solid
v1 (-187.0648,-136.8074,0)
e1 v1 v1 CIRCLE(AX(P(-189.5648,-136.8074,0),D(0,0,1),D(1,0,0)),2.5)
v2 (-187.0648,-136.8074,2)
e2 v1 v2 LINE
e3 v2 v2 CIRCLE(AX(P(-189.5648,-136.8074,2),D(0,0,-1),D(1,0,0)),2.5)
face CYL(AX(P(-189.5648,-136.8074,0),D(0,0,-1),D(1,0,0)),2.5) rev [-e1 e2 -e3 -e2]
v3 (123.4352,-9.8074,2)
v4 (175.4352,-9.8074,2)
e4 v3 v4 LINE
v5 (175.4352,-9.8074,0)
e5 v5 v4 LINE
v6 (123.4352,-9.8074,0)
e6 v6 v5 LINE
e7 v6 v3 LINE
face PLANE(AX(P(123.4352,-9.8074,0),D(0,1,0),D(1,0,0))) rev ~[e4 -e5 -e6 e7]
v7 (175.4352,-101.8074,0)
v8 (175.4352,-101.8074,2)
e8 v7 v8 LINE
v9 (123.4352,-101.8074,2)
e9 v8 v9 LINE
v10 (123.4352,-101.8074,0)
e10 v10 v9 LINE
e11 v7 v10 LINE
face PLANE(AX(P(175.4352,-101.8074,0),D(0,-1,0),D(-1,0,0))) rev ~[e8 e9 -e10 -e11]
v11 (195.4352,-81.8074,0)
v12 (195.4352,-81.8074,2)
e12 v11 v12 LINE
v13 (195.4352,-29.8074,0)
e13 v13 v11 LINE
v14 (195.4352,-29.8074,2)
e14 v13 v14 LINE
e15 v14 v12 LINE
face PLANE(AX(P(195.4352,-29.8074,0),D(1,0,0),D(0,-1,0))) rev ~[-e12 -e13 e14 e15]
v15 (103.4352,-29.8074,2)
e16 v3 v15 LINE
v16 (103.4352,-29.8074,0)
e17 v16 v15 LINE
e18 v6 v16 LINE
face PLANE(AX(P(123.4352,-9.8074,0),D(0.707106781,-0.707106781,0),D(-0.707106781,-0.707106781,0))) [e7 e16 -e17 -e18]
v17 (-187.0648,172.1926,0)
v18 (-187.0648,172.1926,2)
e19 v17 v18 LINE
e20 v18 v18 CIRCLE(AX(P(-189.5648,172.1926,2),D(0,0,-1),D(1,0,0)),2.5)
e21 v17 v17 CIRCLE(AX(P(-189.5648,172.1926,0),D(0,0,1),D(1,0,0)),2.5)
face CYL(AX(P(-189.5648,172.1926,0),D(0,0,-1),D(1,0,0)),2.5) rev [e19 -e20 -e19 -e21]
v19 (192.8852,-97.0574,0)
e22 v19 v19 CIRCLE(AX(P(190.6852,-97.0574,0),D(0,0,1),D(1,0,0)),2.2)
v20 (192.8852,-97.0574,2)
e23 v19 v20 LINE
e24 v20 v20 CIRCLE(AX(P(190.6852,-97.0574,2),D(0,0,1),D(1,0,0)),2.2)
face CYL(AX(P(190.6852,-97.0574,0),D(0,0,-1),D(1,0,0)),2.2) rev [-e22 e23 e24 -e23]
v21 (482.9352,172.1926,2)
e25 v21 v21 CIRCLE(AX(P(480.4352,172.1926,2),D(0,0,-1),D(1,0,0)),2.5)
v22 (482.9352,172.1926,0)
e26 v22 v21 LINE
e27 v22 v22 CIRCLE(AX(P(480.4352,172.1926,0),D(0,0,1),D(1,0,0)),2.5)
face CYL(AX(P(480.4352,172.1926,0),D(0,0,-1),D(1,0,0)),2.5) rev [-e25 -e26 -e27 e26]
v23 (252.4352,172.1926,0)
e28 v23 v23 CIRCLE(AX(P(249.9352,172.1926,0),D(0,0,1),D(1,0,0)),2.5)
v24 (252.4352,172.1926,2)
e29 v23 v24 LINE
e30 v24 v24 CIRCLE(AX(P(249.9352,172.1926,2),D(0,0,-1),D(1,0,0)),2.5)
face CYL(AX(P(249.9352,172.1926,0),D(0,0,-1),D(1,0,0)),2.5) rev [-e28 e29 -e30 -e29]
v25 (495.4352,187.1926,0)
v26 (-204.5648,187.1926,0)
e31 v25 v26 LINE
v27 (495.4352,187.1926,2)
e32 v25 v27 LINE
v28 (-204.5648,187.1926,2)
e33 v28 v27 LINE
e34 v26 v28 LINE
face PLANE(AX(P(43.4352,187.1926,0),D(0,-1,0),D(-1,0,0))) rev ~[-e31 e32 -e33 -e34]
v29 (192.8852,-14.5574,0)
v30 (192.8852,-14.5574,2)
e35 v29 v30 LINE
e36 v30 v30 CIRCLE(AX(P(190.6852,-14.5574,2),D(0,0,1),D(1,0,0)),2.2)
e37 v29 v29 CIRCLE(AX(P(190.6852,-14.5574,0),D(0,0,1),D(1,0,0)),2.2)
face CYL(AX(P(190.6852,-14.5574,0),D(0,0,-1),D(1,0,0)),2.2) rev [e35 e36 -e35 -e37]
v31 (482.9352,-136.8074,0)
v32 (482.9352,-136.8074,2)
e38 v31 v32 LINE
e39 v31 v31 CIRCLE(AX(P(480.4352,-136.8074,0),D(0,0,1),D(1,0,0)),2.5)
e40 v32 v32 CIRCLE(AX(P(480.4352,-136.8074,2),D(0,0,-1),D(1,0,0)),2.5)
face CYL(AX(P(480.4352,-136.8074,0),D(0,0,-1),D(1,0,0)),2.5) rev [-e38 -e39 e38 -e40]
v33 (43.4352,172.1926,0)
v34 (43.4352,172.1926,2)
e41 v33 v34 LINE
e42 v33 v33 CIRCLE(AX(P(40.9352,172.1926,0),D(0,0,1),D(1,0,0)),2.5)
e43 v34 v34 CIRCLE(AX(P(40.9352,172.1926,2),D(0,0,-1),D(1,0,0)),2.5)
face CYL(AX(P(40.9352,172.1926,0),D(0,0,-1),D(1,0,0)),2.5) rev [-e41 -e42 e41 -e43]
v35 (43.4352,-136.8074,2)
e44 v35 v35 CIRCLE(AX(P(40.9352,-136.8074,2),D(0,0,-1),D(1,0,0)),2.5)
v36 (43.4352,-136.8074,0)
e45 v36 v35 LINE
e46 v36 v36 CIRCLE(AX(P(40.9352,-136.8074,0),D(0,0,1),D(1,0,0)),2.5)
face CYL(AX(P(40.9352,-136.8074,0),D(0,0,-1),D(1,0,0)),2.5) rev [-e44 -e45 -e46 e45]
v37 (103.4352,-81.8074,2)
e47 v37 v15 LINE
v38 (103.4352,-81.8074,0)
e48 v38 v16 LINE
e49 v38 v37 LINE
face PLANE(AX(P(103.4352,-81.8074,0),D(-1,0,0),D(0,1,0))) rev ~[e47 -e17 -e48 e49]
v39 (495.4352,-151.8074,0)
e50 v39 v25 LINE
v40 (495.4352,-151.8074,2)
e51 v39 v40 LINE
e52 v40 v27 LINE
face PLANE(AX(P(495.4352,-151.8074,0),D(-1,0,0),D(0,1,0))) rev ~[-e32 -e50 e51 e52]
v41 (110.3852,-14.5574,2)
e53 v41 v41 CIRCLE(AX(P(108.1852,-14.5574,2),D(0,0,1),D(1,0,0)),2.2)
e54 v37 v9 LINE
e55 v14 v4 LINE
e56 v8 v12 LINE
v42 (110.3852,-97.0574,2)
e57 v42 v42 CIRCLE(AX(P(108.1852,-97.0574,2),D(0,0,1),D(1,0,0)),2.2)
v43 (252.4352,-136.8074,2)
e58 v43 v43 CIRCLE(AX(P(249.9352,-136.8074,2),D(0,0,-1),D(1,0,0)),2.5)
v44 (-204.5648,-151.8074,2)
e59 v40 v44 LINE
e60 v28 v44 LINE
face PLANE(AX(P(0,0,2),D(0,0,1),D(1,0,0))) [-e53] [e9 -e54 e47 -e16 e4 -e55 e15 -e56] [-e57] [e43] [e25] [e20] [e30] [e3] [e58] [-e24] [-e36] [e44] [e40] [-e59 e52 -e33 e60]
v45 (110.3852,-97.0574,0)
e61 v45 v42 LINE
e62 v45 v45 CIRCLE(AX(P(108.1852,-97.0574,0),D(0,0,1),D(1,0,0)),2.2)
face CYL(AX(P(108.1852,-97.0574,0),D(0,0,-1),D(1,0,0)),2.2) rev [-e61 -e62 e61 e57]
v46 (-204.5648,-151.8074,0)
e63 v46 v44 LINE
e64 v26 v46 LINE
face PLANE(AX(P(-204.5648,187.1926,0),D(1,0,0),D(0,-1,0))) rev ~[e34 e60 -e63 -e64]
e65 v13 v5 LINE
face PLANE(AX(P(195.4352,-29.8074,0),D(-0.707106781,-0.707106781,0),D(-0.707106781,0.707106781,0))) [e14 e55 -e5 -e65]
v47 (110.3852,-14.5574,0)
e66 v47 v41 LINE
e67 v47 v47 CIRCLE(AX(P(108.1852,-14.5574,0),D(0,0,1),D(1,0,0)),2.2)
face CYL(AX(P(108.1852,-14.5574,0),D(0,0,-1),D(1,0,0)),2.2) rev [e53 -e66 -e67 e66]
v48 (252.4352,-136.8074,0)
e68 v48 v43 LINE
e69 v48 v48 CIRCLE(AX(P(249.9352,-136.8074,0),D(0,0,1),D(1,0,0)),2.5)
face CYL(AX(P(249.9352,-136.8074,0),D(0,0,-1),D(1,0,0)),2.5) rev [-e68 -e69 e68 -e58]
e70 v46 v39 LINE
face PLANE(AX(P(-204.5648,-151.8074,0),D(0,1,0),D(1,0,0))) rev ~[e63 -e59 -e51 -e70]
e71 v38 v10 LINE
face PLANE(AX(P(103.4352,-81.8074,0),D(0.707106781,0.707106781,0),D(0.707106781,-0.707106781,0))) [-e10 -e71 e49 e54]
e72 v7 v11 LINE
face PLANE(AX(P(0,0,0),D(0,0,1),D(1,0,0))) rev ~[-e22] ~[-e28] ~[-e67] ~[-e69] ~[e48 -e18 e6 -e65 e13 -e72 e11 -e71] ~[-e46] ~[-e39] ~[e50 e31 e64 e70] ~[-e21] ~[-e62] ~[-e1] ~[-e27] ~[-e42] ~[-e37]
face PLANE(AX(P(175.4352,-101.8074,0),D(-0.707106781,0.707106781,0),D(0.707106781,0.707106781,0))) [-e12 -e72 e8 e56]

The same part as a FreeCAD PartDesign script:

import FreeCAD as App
import Part
import Sketcher


def add_polygon(sketch, points):
    """Adds a closed chain of lines whose ends are joined by coincident constraints."""
    first, n = sketch.GeometryCount, len(points)
    for a, b in zip(points, points[1:] + points[:1]):
        sketch.addGeometry(Part.LineSegment(App.Vector(*a, 0), App.Vector(*b, 0)), False)
    for i in range(n):
        sketch.addConstraint(Sketcher.Constraint("Coincident", first + i, 2, first + (i + 1) % n, 1))

doc = App.newDocument("Part")
body = doc.addObject("PartDesign::Body", "Body")

# Sketch on XY plane
sketch1 = doc.addObject("Sketcher::SketchObject", "Sketch")
body.addObject(sketch1)
sketch1.AttachmentSupport = (doc.XY_Plane, [""])
sketch1.MapMode = "FlatFace"
add_polygon(sketch1, [(-204.6, 187.2), (-204.6, -151.8), (495.4, -151.8), (495.4, 187.2)])  # lines 0-3
sketch1.addGeometry(Part.Circle(App.Vector(40.9, 172.2, 0), App.Vector(0, 0, 1), 2.5), False)  # 4
sketch1.addGeometry(Part.Circle(App.Vector(-189.6, -136.8, 0), App.Vector(0, 0, 1), 2.5), False)  # 5
sketch1.addGeometry(Part.Circle(App.Vector(-189.6, 172.2, 0), App.Vector(0, 0, 1), 2.5), False)  # 6
sketch1.addGeometry(Part.Circle(App.Vector(40.9, -136.8, 0), App.Vector(0, 0, 1), 2.5), False)  # 7
add_polygon(sketch1, [(195.4, -29.8), (195.4, -81.8), (175.4, -101.8), (123.4, -101.8), (103.4, -81.8), (103.4, -29.8), (123.4, -9.8), (175.4, -9.8)])  # lines 8-15
sketch1.addGeometry(Part.Circle(App.Vector(190.7, -14.6, 0), App.Vector(0, 0, 1), 2.2), False)  # 16
sketch1.addGeometry(Part.Circle(App.Vector(108.2, -97.1, 0), App.Vector(0, 0, 1), 2.2), False)  # 17
sketch1.addGeometry(Part.Circle(App.Vector(108.2, -14.6, 0), App.Vector(0, 0, 1), 2.2), False)  # 18
sketch1.addGeometry(Part.Circle(App.Vector(190.7, -97.1, 0), App.Vector(0, 0, 1), 2.2), False)  # 19
sketch1.addGeometry(Part.Circle(App.Vector(249.9, -136.8, 0), App.Vector(0, 0, 1), 2.5), False)  # 20
sketch1.addGeometry(Part.Circle(App.Vector(480.4, 172.2, 0), App.Vector(0, 0, 1), 2.5), False)  # 21
sketch1.addGeometry(Part.Circle(App.Vector(249.9, 172.2, 0), App.Vector(0, 0, 1), 2.5), False)  # 22
sketch1.addGeometry(Part.Circle(App.Vector(480.4, -136.8, 0), App.Vector(0, 0, 1), 2.5), False)  # 23
sketch1.addConstraint(Sketcher.Constraint("Vertical", 0))
sketch1.addConstraint(Sketcher.Constraint("Horizontal", 1))
sketch1.addConstraint(Sketcher.Constraint("Vertical", 2))
sketch1.addConstraint(Sketcher.Constraint("Horizontal", 3))
sketch1.addConstraint(Sketcher.Constraint("Vertical", 8))
sketch1.addConstraint(Sketcher.Constraint("Horizontal", 10))
sketch1.addConstraint(Sketcher.Constraint("Vertical", 12))
sketch1.addConstraint(Sketcher.Constraint("Horizontal", 14))
sketch1.addConstraint(Sketcher.Constraint("Equal", 4, 5))
sketch1.addConstraint(Sketcher.Constraint("Equal", 5, 6))
sketch1.addConstraint(Sketcher.Constraint("Equal", 6, 7))
sketch1.addConstraint(Sketcher.Constraint("Equal", 16, 17))
sketch1.addConstraint(Sketcher.Constraint("Equal", 17, 18))
sketch1.addConstraint(Sketcher.Constraint("Equal", 18, 19))
sketch1.addConstraint(Sketcher.Constraint("Equal", 7, 20))
sketch1.addConstraint(Sketcher.Constraint("Equal", 20, 21))
sketch1.addConstraint(Sketcher.Constraint("Equal", 21, 22))
sketch1.addConstraint(Sketcher.Constraint("Equal", 22, 23))
sketch1.addConstraint(Sketcher.Constraint("Perpendicular", 9, 11))
sketch1.addConstraint(Sketcher.Constraint("Perpendicular", 11, 13))
sketch1.addConstraint(Sketcher.Constraint("Perpendicular", 13, 15))
sketch1.addConstraint(Sketcher.Constraint("Horizontal", 4, 3, 6, 3))
sketch1.addConstraint(Sketcher.Constraint("Horizontal", 5, 3, 7, 3))
sketch1.addConstraint(Sketcher.Constraint("Horizontal", 16, 3, 18, 3))
sketch1.addConstraint(Sketcher.Constraint("Horizontal", 17, 3, 19, 3))
sketch1.addConstraint(Sketcher.Constraint("Horizontal", 7, 3, 20, 3))
sketch1.addConstraint(Sketcher.Constraint("Horizontal", 6, 3, 21, 3))
sketch1.addConstraint(Sketcher.Constraint("Horizontal", 21, 3, 22, 3))
sketch1.addConstraint(Sketcher.Constraint("Horizontal", 20, 3, 23, 3))
sketch1.addConstraint(Sketcher.Constraint("Horizontal", 8, 2, 11, 2))
sketch1.addConstraint(Sketcher.Constraint("Horizontal", 12, 2, 15, 2))
sketch1.addConstraint(Sketcher.Constraint("Vertical", 5, 3, 6, 3))
sketch1.addConstraint(Sketcher.Constraint("Vertical", 4, 3, 7, 3))
sketch1.addConstraint(Sketcher.Constraint("Vertical", 17, 3, 18, 3))
sketch1.addConstraint(Sketcher.Constraint("Vertical", 16, 3, 19, 3))
sketch1.addConstraint(Sketcher.Constraint("Vertical", 20, 3, 22, 3))
sketch1.addConstraint(Sketcher.Constraint("Vertical", 21, 3, 23, 3))
sketch1.addConstraint(Sketcher.Constraint("Vertical", 10, 2, 13, 2))
sketch1.addConstraint(Sketcher.Constraint("Vertical", 9, 2, 14, 2))
sketch1.addConstraint(Sketcher.Constraint("Equal", 14, 8))
sketch1.addConstraint(Sketcher.Constraint("Diameter", 4, 5.0))
sketch1.addConstraint(Sketcher.Constraint("Diameter", 16, 4.4))
sketch1.addConstraint(Sketcher.Constraint("DistanceX", 1, 1, 1, 2, 700.0))
sketch1.addConstraint(Sketcher.Constraint("DistanceY", 0, 2, 0, 1, 339.0))
sketch1.addConstraint(Sketcher.Constraint("DistanceX", 9, 2, 8, 2, 20.0))
sketch1.addConstraint(Sketcher.Constraint("DistanceX", 10, 2, 10, 1, 52.0))
sketch1.addConstraint(Sketcher.Constraint("DistanceX", 19, 3, 8, 2, 4.75))
sketch1.addConstraint(Sketcher.Constraint("DistanceY", 9, 2, 19, 3, 4.75))
sketch1.addConstraint(Sketcher.Constraint("DistanceX", 11, 2, 17, 3, 4.75))
sketch1.addConstraint(Sketcher.Constraint("DistanceY", 18, 3, 13, 2, 4.75))
sketch1.addConstraint(Sketcher.Constraint("DistanceY", 5, 3, 4, 3, 309.0))
sketch1.addConstraint(Sketcher.Constraint("DistanceX", 7, 3, 20, 3, 209.0))
sketch1.addConstraint(Sketcher.Constraint("DistanceX", 0, 2, 5, 3, 15.0))
sketch1.addConstraint(Sketcher.Constraint("DistanceY", 0, 2, 5, 3, 15.0))
sketch1.addConstraint(Sketcher.Constraint("DistanceX", 23, 3, 1, 2, 15.0))
sketch1.addConstraint(Sketcher.Constraint("DistanceY", 20, 3, 8, 2, 55.0))
sketch1.addConstraint(Sketcher.Constraint("DistanceX", 5, 3, 4, 3, 230.5))
sketch1.addConstraint(Sketcher.Constraint("DistanceX", 8, 2, 20, 3, 54.5))
sketch1.addConstraint(Sketcher.Constraint("DistanceX", -1, 1, 4, 3, 40.9352))
sketch1.addConstraint(Sketcher.Constraint("DistanceY", -1, 1, 4, 3, 172.1926))
pad1 = doc.addObject("PartDesign::Pad", "Pad")
body.addObject(pad1)
pad1.Profile = sketch1
pad1.Length = 2

doc.recompute()
